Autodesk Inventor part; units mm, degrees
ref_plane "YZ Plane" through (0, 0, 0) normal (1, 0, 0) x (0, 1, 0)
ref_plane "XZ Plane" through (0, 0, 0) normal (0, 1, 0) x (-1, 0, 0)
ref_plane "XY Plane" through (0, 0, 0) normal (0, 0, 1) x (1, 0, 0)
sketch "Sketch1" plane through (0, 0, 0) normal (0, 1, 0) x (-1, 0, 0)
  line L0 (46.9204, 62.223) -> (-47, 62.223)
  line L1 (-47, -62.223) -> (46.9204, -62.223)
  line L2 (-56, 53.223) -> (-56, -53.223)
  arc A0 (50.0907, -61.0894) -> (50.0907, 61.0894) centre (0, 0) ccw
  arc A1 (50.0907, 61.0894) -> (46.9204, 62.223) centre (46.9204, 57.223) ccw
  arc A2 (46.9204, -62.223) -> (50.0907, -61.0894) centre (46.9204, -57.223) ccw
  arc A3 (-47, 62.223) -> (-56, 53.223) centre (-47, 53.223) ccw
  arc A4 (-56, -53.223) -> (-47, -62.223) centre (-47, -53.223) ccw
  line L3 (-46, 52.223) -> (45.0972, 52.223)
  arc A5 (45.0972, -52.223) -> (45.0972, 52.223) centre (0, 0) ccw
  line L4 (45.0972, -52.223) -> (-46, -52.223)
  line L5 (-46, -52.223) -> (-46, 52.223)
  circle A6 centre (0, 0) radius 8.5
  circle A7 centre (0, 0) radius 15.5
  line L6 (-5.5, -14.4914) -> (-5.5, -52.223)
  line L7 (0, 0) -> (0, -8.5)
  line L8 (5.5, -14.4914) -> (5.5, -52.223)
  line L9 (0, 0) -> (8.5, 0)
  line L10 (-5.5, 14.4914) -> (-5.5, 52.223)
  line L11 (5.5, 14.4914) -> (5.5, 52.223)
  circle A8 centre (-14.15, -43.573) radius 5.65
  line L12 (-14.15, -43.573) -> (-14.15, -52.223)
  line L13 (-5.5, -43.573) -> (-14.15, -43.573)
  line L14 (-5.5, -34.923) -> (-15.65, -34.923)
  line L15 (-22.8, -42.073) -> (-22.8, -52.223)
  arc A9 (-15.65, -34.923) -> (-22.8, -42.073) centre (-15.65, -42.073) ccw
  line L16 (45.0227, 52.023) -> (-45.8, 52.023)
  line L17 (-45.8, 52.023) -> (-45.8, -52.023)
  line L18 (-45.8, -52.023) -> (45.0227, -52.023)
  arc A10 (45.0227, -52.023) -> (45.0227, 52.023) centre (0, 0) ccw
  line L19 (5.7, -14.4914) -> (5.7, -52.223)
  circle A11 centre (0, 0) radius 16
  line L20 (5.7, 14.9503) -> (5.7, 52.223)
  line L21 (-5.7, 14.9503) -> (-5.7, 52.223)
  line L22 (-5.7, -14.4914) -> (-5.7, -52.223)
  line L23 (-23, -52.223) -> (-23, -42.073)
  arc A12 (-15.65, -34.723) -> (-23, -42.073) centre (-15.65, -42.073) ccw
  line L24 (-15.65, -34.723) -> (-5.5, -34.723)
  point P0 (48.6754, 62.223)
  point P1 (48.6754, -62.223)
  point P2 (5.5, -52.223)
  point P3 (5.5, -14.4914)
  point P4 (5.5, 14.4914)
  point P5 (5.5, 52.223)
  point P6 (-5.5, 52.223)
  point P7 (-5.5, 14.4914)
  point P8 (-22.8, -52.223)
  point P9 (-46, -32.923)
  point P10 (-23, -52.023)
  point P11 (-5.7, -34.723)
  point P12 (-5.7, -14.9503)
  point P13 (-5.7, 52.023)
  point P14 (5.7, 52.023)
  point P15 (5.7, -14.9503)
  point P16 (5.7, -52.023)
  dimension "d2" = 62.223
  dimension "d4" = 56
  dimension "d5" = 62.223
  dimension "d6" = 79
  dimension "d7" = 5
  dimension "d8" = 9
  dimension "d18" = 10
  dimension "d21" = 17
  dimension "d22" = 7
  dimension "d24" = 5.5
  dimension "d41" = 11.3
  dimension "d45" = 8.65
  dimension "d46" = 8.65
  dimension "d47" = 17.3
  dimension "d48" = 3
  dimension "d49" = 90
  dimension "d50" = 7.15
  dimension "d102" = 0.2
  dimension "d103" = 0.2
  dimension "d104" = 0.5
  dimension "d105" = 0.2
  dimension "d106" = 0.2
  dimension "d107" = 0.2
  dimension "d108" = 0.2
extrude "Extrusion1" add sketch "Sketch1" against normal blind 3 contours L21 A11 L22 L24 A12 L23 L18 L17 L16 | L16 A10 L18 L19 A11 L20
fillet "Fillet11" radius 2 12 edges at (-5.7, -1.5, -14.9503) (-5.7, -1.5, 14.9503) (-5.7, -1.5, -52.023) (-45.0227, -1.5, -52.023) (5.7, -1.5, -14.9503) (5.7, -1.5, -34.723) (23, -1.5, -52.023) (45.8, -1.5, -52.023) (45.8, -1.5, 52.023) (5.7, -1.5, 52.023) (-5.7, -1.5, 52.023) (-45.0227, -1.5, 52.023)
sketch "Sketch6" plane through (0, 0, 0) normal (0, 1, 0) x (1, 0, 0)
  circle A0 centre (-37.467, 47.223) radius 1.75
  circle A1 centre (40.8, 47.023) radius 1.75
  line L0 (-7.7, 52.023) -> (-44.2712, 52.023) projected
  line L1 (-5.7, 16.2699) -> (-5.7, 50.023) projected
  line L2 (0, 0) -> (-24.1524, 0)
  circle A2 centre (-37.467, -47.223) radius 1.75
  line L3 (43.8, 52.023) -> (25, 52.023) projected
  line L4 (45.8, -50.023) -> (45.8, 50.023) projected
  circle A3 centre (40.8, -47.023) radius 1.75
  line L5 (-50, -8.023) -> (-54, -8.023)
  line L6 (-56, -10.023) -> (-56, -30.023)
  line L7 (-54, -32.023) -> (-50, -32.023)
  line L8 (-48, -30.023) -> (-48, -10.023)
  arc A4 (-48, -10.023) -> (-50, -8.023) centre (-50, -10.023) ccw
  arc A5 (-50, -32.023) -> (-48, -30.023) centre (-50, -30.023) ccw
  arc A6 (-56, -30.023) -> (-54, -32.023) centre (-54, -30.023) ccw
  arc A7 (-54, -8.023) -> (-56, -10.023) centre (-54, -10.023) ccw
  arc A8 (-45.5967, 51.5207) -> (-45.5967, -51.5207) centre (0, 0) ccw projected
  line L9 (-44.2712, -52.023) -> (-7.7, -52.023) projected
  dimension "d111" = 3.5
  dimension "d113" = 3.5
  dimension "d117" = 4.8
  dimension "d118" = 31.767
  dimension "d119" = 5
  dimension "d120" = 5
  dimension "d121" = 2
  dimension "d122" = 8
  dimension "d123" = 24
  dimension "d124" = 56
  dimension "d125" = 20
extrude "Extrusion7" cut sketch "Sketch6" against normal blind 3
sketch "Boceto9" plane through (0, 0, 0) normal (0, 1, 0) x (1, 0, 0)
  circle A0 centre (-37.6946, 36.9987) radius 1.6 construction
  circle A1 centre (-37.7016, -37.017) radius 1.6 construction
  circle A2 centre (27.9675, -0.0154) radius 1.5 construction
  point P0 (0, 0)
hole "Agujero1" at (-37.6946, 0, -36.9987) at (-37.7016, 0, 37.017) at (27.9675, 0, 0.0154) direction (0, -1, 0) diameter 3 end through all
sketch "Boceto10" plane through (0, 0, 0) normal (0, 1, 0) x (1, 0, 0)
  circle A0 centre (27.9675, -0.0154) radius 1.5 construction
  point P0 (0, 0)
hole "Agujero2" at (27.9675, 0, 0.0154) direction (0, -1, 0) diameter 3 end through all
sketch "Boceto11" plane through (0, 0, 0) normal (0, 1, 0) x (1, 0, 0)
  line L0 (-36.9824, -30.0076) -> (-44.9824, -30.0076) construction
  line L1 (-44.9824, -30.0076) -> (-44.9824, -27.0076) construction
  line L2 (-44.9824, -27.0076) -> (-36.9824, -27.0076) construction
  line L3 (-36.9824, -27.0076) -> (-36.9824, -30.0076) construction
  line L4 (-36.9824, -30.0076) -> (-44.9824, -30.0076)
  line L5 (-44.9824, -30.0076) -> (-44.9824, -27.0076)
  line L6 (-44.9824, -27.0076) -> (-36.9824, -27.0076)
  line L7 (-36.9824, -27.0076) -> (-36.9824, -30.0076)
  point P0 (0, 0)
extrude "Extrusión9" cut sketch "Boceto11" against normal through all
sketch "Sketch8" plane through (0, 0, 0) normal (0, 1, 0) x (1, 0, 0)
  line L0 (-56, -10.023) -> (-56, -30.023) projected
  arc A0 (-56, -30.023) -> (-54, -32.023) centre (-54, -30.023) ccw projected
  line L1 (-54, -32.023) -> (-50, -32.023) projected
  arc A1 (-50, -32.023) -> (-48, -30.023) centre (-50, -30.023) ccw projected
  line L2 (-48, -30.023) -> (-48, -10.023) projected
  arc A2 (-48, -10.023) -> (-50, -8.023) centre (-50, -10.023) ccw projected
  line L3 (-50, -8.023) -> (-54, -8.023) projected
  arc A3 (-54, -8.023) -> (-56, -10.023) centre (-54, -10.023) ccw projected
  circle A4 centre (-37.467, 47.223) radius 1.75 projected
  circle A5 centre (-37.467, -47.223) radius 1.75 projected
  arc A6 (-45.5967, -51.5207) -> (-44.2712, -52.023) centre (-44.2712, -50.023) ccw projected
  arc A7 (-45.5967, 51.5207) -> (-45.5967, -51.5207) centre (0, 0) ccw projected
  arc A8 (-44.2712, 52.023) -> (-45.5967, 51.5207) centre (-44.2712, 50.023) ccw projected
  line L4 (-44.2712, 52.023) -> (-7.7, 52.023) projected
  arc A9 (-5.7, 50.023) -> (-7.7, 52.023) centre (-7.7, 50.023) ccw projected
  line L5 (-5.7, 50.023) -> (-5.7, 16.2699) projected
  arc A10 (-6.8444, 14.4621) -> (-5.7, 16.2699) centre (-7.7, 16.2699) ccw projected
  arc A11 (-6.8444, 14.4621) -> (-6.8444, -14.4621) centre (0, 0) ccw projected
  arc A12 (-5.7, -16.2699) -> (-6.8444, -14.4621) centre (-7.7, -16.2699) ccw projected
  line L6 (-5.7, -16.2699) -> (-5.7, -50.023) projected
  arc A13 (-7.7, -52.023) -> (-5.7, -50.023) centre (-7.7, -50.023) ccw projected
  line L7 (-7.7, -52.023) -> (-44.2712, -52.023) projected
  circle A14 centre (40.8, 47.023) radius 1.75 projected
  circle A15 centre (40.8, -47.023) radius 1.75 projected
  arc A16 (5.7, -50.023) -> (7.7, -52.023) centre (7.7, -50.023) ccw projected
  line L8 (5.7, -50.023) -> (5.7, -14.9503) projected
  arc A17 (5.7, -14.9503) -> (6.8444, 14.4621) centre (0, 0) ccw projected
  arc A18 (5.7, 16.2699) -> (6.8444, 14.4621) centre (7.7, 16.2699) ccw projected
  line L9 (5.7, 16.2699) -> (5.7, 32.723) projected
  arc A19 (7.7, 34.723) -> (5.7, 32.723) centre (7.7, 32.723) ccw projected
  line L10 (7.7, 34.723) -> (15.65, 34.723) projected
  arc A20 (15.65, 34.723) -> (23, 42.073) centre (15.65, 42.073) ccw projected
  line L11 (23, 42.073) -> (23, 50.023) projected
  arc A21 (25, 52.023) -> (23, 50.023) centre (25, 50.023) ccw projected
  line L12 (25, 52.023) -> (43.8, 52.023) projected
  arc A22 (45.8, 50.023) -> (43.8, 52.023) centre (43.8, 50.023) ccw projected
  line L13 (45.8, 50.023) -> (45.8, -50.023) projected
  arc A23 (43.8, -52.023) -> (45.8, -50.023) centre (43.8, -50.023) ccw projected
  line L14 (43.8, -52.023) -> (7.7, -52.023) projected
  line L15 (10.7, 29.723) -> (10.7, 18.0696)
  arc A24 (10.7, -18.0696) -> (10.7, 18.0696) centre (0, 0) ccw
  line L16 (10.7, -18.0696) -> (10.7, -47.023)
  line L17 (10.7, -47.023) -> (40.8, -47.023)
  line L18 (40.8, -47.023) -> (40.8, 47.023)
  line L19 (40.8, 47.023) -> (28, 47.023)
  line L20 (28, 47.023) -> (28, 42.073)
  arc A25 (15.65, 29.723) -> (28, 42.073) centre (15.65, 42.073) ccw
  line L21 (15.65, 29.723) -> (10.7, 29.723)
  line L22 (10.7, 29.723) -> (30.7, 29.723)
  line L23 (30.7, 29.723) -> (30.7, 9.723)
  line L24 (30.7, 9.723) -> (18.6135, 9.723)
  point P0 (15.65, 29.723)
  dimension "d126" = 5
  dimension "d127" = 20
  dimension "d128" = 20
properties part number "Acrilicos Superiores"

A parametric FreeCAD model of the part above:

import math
import FreeCAD as App
import Part
import Sketcher

V = App.Vector


def edges_at(feature, points):
    """Names of the edges that pass closest to the given points."""
    edges = feature.Shape.Edges
    near = lambda p: min(range(len(edges)), key=lambda i: edges[i].distToShape(Part.Vertex(*p))[0])
    return sorted({f"Edge{near(p) + 1}" for p in points})

doc = App.newDocument("Part")
params = doc.addObject("Spreadsheet::Sheet", "Params")
for row, (alias, value) in enumerate([
    ("sketch1_radius", "16 mm"),
    ("sketch1_radius2", "68.8 mm"),
    ("sketch1_radius3", "7.35 mm"),
    ("sketch1_width", "40.1 mm"),
    ("pad1_length", "3 mm"),
    ("fillet_radius", "2 mm"),
    ("sketch2_radius", "2 mm"),
    ("sketch2_diameter", "3.5 mm"),
    ("sketch2_height", "20 mm"),
    ("pocket1_length", "3 mm"),
    ("sketch3_diameter", "3 mm"),
    ("hole_diameter", "3 mm"),
    ("sketch4_diameter", "3 mm"),
    ("hole2_diameter", "3 mm"),
    ("sketch5_width", "8 mm"),
    ("sketch5_height", "3 mm"),
], start=1):
    params.set(f"A{row}", alias)
    params.set(f"B{row}", "=" + value)
    params.setAlias(f"B{row}", alias)

body = doc.addObject("PartDesign::Body", "Body")
body.AllowCompound = True

# Sketch on XZ plane
sketch1 = doc.addObject("Sketcher::SketchObject", "Sketch")
body.addObject(sketch1)
sketch1.AttachmentSupport = (doc.XZ_Plane, [""])
sketch1.MapMode = "FlatFace"
sketch1.addGeometry(Part.LineSegment(V(6, 15, 0), V(6, 52, 0)), False)
sketch1.addGeometry(Part.LineSegment(V(6, 52, 0), V(46, 52, 0)), False)
sketch1.addGeometry(Part.LineSegment(V(46, 52, 0), V(46, -52, 0)), False)
sketch1.addGeometry(Part.LineSegment(V(46, -52, 0), V(23, -52, 0)), False)
sketch1.addGeometry(Part.LineSegment(V(23, -52, 0), V(23, -42, 0)), False)
sketch1.addGeometry(Part.ArcOfCircle(Part.Circle(V(16, -42, 0), V(0, 0, 1), 7), math.radians(0), math.radians(90)), False)
sketch1.addGeometry(Part.LineSegment(V(16, -35, 0), V(6, -35, 0)), False)
sketch1.addGeometry(Part.LineSegment(V(6, -35, 0), V(6, -15, 0)), False)
sketch1.addGeometry(Part.ArcOfCircle(Part.Circle(V(0, 0, 0), V(0, 0, 1), 16), math.radians(-69), math.radians(69)), False)
sketch1.addGeometry(Part.LineSegment(V(-45, 52, 0), V(-6, 52, 0)), False)
sketch1.addGeometry(Part.LineSegment(V(-6, 52, 0), V(-6, 15, 0)), False)
sketch1.addGeometry(Part.ArcOfCircle(Part.Circle(V(0, 0, 0), V(0, 0, 1), 16), math.radians(111), math.radians(249)), False)
sketch1.addGeometry(Part.LineSegment(V(-6, -15, 0), V(-6, -52, 0)), False)
sketch1.addGeometry(Part.LineSegment(V(-6, -52, 0), V(-45, -52, 0)), False)
sketch1.addGeometry(Part.ArcOfCircle(Part.Circle(V(0, 0, 0), V(0, 0, 1), 69), math.radians(131), math.radians(229)), False)
sketch1.addConstraint(Sketcher.Constraint("Coincident", 0, 2, 1, 1))
sketch1.addConstraint(Sketcher.Constraint("Coincident", 1, 2, 2, 1))
sketch1.addConstraint(Sketcher.Constraint("Coincident", 2, 2, 3, 1))
sketch1.addConstraint(Sketcher.Constraint("Coincident", 3, 2, 4, 1))
sketch1.addConstraint(Sketcher.Constraint("Tangent", 4, 2, 5, 1))
sketch1.addConstraint(Sketcher.Constraint("Tangent", 5, 2, 6, 1))
sketch1.addConstraint(Sketcher.Constraint("Coincident", 6, 2, 7, 1))
sketch1.addConstraint(Sketcher.Constraint("Coincident", 7, 2, 8, 1))
sketch1.addConstraint(Sketcher.Constraint("Coincident", 8, 2, 0, 1))
sketch1.addConstraint(Sketcher.Constraint("Coincident", 9, 2, 10, 1))
sketch1.addConstraint(Sketcher.Constraint("Coincident", 10, 2, 11, 1))
sketch1.addConstraint(Sketcher.Constraint("Coincident", 11, 2, 12, 1))
sketch1.addConstraint(Sketcher.Constraint("Coincident", 12, 2, 13, 1))
sketch1.addConstraint(Sketcher.Constraint("Coincident", 13, 2, 14, 2))
sketch1.addConstraint(Sketcher.Constraint("Coincident", 14, 1, 9, 1))
sketch1.addConstraint(Sketcher.Constraint("Vertical", 0))
sketch1.addConstraint(Sketcher.Constraint("Horizontal", 1))
sketch1.addConstraint(Sketcher.Constraint("Vertical", 2))
sketch1.addConstraint(Sketcher.Constraint("Horizontal", 3))
sketch1.addConstraint(Sketcher.Constraint("Vertical", 4))
sketch1.addConstraint(Sketcher.Constraint("Horizontal", 6))
sketch1.addConstraint(Sketcher.Constraint("Vertical", 7))
sketch1.addConstraint(Sketcher.Constraint("Horizontal", 9))
sketch1.addConstraint(Sketcher.Constraint("Vertical", 10))
sketch1.addConstraint(Sketcher.Constraint("Vertical", 12))
sketch1.addConstraint(Sketcher.Constraint("Horizontal", 13))
sketch1.addConstraint(Sketcher.Constraint("Coincident", 8, 3, -1, 1))
sketch1.addConstraint(Sketcher.Constraint("Coincident", 11, 3, -1, 1))
sketch1.addConstraint(Sketcher.Constraint("Coincident", 14, 3, -1, 1))
sketch1.addConstraint(Sketcher.Constraint("Equal", 8, 11))
sketch1.addConstraint(Sketcher.Constraint("Symmetric", 0, 2, 12, 2, -1, 1))
sketch1.addConstraint(Sketcher.Constraint("Symmetric", 0, 2, 9, 2, -2))
sketch1.addConstraint(Sketcher.Constraint("Horizontal", 7, 2, 11, 2))
sketch1.addConstraint(Sketcher.Constraint("Horizontal", 3, 2, 12, 2))
sketch1.addConstraint(Sketcher.Constraint("Equal", 6, 4))
sketch1.addConstraint(Sketcher.Constraint("Radius", 8, 16.0))
sketch1.addConstraint(Sketcher.Constraint("Radius", 14, 68.8))
sketch1.addConstraint(Sketcher.Constraint("DistanceY", 3, 2, 5, 2, 17.3))
sketch1.addConstraint(Sketcher.Constraint("Radius", 5, 7.35))
sketch1.addConstraint(Sketcher.Constraint("DistanceX", 1, 1, 1, 2, 40.1))
sketch1.addConstraint(Sketcher.Constraint("DistanceX", -1, 1, 3, 2, 23.0))
sketch1.addConstraint(Sketcher.Constraint("DistanceY", 2, 2, 2, 1, 104.046))
sketch1.setExpression("Constraints[35]", "Params.sketch1_radius")
sketch1.setExpression("Constraints[36]", "Params.sketch1_radius2")
sketch1.setExpression("Constraints[38]", "Params.sketch1_radius3")
sketch1.setExpression("Constraints[39]", "Params.sketch1_width")
pad1 = doc.addObject("PartDesign::Pad", "Pad")
body.addObject(pad1)
pad1.Profile = sketch1
pad1.setExpression("Length", "Params.pad1_length")
doc.recompute()

fillet = doc.addObject("PartDesign::Fillet", "Fillet")
body.addObject(fillet)
fillet.Base = (pad1, edges_at(pad1, [
    (-5.7, -1.5, -14.95),
    (-5.7, -1.5, 14.95),
    (-5.7, -1.5, -52.023),
    (-45.023, -1.5, -52.023),
    (5.7, -1.5, -14.95),
    (5.7, -1.5, -34.723),
    (23, -1.5, -52.023),
    (45.8, -1.5, -52.023),
    (45.8, -1.5, 52.023),
    (5.7, -1.5, 52.023),
    (-5.7, -1.5, 52.023),
    (-45.023, -1.5, 52.023),
]))
fillet.setExpression("Radius", "Params.fillet_radius")

# Sketch on XZ plane
sketch2 = doc.addObject("Sketcher::SketchObject", "Sketch001")
body.addObject(sketch2)
sketch2.AttachmentSupport = (doc.XZ_Plane, [""])
sketch2.MapMode = "FlatFace"
sketch2.addGeometry(Part.Circle(V(-37.5, -47.2, 0), V(0, 0, 1), 1.8), False)
sketch2.addGeometry(Part.Circle(V(40.8, -47, 0), V(0, 0, 1), 1.8), False)
sketch2.addGeometry(Part.Circle(V(-37.5, 47.2, 0), V(0, 0, 1), 1.8), False)
sketch2.addGeometry(Part.Circle(V(40.8, 47, 0), V(0, 0, 1), 1.8), False)
sketch2.addGeometry(Part.ArcOfCircle(Part.Circle(V(-50, 10, 0), V(0, 0, 1), 2), math.radians(-90), math.radians(0)), False)
sketch2.addGeometry(Part.LineSegment(V(-50, 8, 0), V(-54, 8, 0)), False)
sketch2.addGeometry(Part.ArcOfCircle(Part.Circle(V(-54, 10, 0), V(0, 0, 1), 2), math.radians(180), math.radians(270)), False)
sketch2.addGeometry(Part.LineSegment(V(-56, 10, 0), V(-56, 30, 0)), False)
sketch2.addGeometry(Part.ArcOfCircle(Part.Circle(V(-54, 30, 0), V(0, 0, 1), 2), math.radians(90), math.radians(180)), False)
sketch2.addGeometry(Part.LineSegment(V(-54, 32, 0), V(-50, 32, 0)), False)
sketch2.addGeometry(Part.ArcOfCircle(Part.Circle(V(-50, 30, 0), V(0, 0, 1), 2), math.radians(0), math.radians(90)), False)
sketch2.addGeometry(Part.LineSegment(V(-48, 30, 0), V(-48, 10, 0)), False)
sketch2.addConstraint(Sketcher.Constraint("Tangent", 4, 1, 5, 1))
sketch2.addConstraint(Sketcher.Constraint("Tangent", 5, 2, 6, 2))
sketch2.addConstraint(Sketcher.Constraint("Tangent", 6, 1, 7, 1))
sketch2.addConstraint(Sketcher.Constraint("Tangent", 7, 2, 8, 2))
sketch2.addConstraint(Sketcher.Constraint("Tangent", 8, 1, 9, 1))
sketch2.addConstraint(Sketcher.Constraint("Tangent", 9, 2, 10, 2))
sketch2.addConstraint(Sketcher.Constraint("Tangent", 10, 1, 11, 1))
sketch2.addConstraint(Sketcher.Constraint("Tangent", 11, 2, 4, 2))
sketch2.addConstraint(Sketcher.Constraint("Horizontal", 5))
sketch2.addConstraint(Sketcher.Constraint("Vertical", 7))
sketch2.addConstraint(Sketcher.Constraint("Horizontal", 9))
sketch2.addConstraint(Sketcher.Constraint("Vertical", 11))
sketch2.addConstraint(Sketcher.Constraint("Equal", 0, 1))
sketch2.addConstraint(Sketcher.Constraint("Equal", 1, 2))
sketch2.addConstraint(Sketcher.Constraint("Equal", 2, 3))
sketch2.addConstraint(Sketcher.Constraint("Equal", 4, 6))
sketch2.addConstraint(Sketcher.Constraint("Equal", 6, 8))
sketch2.addConstraint(Sketcher.Constraint("Equal", 8, 10))
sketch2.addConstraint(Sketcher.Constraint("Symmetric", 0, 3, 2, 3, -1))
sketch2.addConstraint(Sketcher.Constraint("Symmetric", 1, 3, 3, 3, -1))
sketch2.addConstraint(Sketcher.Constraint("Radius", 4, 2.0))
sketch2.addConstraint(Sketcher.Constraint("Diameter", 0, 3.5))
sketch2.addConstraint(Sketcher.Constraint("DistanceY", 7, 1, 7, 2, 20.0))
sketch2.addConstraint(Sketcher.Constraint("DistanceX", 6, 1, -1, 1, 56.0))
sketch2.addConstraint(Sketcher.Constraint("DistanceX", 7, 2, 10, 1, 8.0))
sketch2.addConstraint(Sketcher.Constraint("DistanceY", 4, 3, 3, 3, 37.0))
sketch2.addConstraint(Sketcher.Constraint("DistanceX", -1, 1, 1, 3, 40.8))
sketch2.addConstraint(Sketcher.Constraint("DistanceY", 0, 3, 1, 3, 0.2))
sketch2.addConstraint(Sketcher.Constraint("DistanceX", 0, 3, -1, 1, 37.467))
sketch2.addConstraint(Sketcher.Constraint("DistanceY", 0, 3, -1, 1, 47.223))
sketch2.setExpression("Constraints[20]", "Params.sketch2_radius")
sketch2.setExpression("Constraints[21]", "Params.sketch2_diameter")
sketch2.setExpression("Constraints[22]", "Params.sketch2_height")
pocket1 = doc.addObject("PartDesign::Pocket", "Pocket")
body.addObject(pocket1)
pocket1.Profile = sketch2
pocket1.setExpression("Length", "Params.pocket1_length")
pocket1.Reversed = True

# Sketch on XZ plane
sketch3 = doc.addObject("Sketcher::SketchObject", "Sketch002")
body.addObject(sketch3)
sketch3.AttachmentSupport = (doc.XZ_Plane, [""])
sketch3.MapMode = "FlatFace"
sketch3.addGeometry(Part.Circle(V(-37.7, -37, 0), V(0, 0, 1), 1.5), False)
sketch3.addGeometry(Part.Circle(V(-37.7, 37, 0), V(0, 0, 1), 1.5), False)
sketch3.addGeometry(Part.Circle(V(28, 0, 0), V(0, 0, 1), 1.5), False)
sketch3.addConstraint(Sketcher.Constraint("Equal", 0, 1))
sketch3.addConstraint(Sketcher.Constraint("Equal", 1, 2))
sketch3.addConstraint(Sketcher.Constraint("Diameter", 0, 3.0))
sketch3.addConstraint(Sketcher.Constraint("DistanceY", -1, 1, 1, 3, 37.017))
sketch3.addConstraint(Sketcher.Constraint("DistanceX", 1, 3, 0, 3, 0.007))
sketch3.addConstraint(Sketcher.Constraint("DistanceX", 1, 3, 2, 3, 65.669))
sketch3.addConstraint(Sketcher.Constraint("DistanceY", 0, 3, 2, 3, 37.014))
sketch3.addConstraint(Sketcher.Constraint("DistanceX", 0, 3, -1, 1, 37.6946))
sketch3.addConstraint(Sketcher.Constraint("DistanceY", 0, 3, -1, 1, 36.9987))
sketch3.setExpression("Constraints[2]", "Params.sketch3_diameter")
doc.recompute()
hole = doc.addObject("PartDesign::Hole", "Hole")
body.addObject(hole)
hole.Profile = sketch3
hole.ThreadType = "None"
hole.setExpression("Diameter", "Params.hole_diameter")
hole.DepthType = "ThroughAll"
hole.Reversed = True

# Sketch on XZ plane
sketch4 = doc.addObject("Sketcher::SketchObject", "Sketch003")
body.addObject(sketch4)
sketch4.AttachmentSupport = (doc.XZ_Plane, [""])
sketch4.MapMode = "FlatFace"
sketch4.addGeometry(Part.Circle(V(28, 0, 0), V(0, 0, 1), 1.5), False)
sketch4.addConstraint(Sketcher.Constraint("Diameter", 0, 3.0))
sketch4.addConstraint(Sketcher.Constraint("DistanceX", -1, 1, 0, 3, 27.9675))
sketch4.addConstraint(Sketcher.Constraint("DistanceY", -1, 1, 0, 3, 0.0154))
sketch4.setExpression("Constraints[0]", "Params.sketch4_diameter")
doc.recompute()
hole2 = doc.addObject("PartDesign::Hole", "Hole001")
body.addObject(hole2)
hole2.Profile = sketch4
hole2.ThreadType = "None"
hole2.setExpression("Diameter", "Params.hole2_diameter")
hole2.DepthType = "ThroughAll"
hole2.Reversed = True

# Sketch on XZ plane
sketch5 = doc.addObject("Sketcher::SketchObject", "Sketch004")
body.addObject(sketch5)
sketch5.AttachmentSupport = (doc.XZ_Plane, [""])
sketch5.MapMode = "FlatFace"
sketch5.addGeometry(Part.LineSegment(V(-45, 30, 0), V(-37, 30, 0)), False)
sketch5.addGeometry(Part.LineSegment(V(-37, 30, 0), V(-37, 27, 0)), False)
sketch5.addGeometry(Part.LineSegment(V(-37, 27, 0), V(-45, 27, 0)), False)
sketch5.addGeometry(Part.LineSegment(V(-45, 27, 0), V(-45, 30, 0)), False)
sketch5.addConstraint(Sketcher.Constraint("Coincident", 0, 2, 1, 1))
sketch5.addConstraint(Sketcher.Constraint("Coincident", 1, 2, 2, 1))
sketch5.addConstraint(Sketcher.Constraint("Coincident", 2, 2, 3, 1))
sketch5.addConstraint(Sketcher.Constraint("Coincident", 3, 2, 0, 1))
sketch5.addConstraint(Sketcher.Constraint("Horizontal", 0))
sketch5.addConstraint(Sketcher.Constraint("Vertical", 1))
sketch5.addConstraint(Sketcher.Constraint("Horizontal", 2))
sketch5.addConstraint(Sketcher.Constraint("Vertical", 3))
sketch5.addConstraint(Sketcher.Constraint("DistanceX", 0, 1, 0, 2, 8.0))
sketch5.addConstraint(Sketcher.Constraint("DistanceY", 1, 2, 1, 1, 3.0))
sketch5.addConstraint(Sketcher.Constraint("DistanceX", 0, 2, -1, 1, 36.9824))
sketch5.addConstraint(Sketcher.Constraint("DistanceY", -1, 1, 0, 2, 30.0076))
sketch5.setExpression("Constraints[8]", "Params.sketch5_width")
sketch5.setExpression("Constraints[9]", "Params.sketch5_height")
pocket2 = doc.addObject("PartDesign::Pocket", "Pocket001")
body.addObject(pocket2)
pocket2.Profile = sketch5
pocket2.Type = "ThroughAll"
pocket2.Reversed = True

doc.recompute()
